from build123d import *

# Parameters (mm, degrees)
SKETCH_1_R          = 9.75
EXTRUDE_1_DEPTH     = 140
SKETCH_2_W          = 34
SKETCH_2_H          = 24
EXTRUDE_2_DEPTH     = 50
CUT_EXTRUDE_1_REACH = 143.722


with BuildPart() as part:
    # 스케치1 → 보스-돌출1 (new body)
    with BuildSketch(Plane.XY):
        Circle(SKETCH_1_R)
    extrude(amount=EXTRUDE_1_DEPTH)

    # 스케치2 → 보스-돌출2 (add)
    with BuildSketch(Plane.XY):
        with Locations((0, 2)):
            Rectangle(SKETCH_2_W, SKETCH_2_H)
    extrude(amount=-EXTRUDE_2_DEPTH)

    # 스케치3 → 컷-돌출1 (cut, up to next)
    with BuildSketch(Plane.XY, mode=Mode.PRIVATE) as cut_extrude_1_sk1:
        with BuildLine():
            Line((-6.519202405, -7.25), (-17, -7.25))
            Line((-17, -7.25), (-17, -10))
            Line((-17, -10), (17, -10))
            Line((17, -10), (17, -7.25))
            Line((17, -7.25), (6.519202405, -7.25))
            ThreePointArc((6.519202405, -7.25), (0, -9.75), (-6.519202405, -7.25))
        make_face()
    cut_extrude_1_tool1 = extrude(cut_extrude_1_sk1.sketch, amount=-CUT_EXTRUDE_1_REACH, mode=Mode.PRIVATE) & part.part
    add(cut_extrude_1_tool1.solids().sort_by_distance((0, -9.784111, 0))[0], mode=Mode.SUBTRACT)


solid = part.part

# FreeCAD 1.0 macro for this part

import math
import FreeCAD as App
import Part
import Sketcher
from FreeCAD import Vector
Q = App.Units.Quantity


def add_polygon(sketch, points):
    """Adds a closed chain of lines whose ends are joined by coincident constraints."""
    first, n = sketch.GeometryCount, len(points)
    for a, b in zip(points, points[1:] + points[:1]):
        sketch.addGeometry(Part.LineSegment(App.Vector(*a, 0), App.Vector(*b, 0)), False)
    for i in range(n):
        sketch.addConstraint(Sketcher.Constraint("Coincident", first + i, 2, first + (i + 1) % n, 1))

doc = App.newDocument("Part")
body = doc.addObject("PartDesign::Body", "Body")

# Sketch on XY plane
sketch1 = doc.addObject("Sketcher::SketchObject", "Sketch")
body.addObject(sketch1)
sketch1.AttachmentSupport = (doc.XY_Plane, [""])
sketch1.MapMode = "FlatFace"
sketch1.addGeometry(Part.Circle(Vector(0, 0, 0), Vector(0, 0, 1), 9.75), False)
sketch1.addConstraint(Sketcher.Constraint("Coincident", 0, 3, -1, 1))
sketch1.addConstraint(Sketcher.Constraint("Diameter", 0, Q("19.5 mm")))
pad1 = doc.addObject("PartDesign::Pad", "Pad")
body.addObject(pad1)
pad1.Profile = sketch1
pad1.Length = 140

# Sketch on XY plane
sketch2 = doc.addObject("Sketcher::SketchObject", "Sketch001")
body.addObject(sketch2)
sketch2.AttachmentSupport = (doc.XY_Plane, [""])
sketch2.MapMode = "FlatFace"
add_polygon(sketch2, [(-17, 14), (-17, -10), (17, -10), (17, 14)])  # lines 0-3
sketch2.addConstraint(Sketcher.Constraint("Vertical", 0))
sketch2.addConstraint(Sketcher.Constraint("Horizontal", 1))
sketch2.addConstraint(Sketcher.Constraint("Vertical", 2))
sketch2.addConstraint(Sketcher.Constraint("Horizontal", 3))
sketch2.addConstraint(Sketcher.Constraint("DistanceX", 1, 1, 1, 2, Q("34 mm")))
sketch2.addConstraint(Sketcher.Constraint("DistanceY", 0, 2, 0, 1, Q("24 mm")))
sketch2.addConstraint(Sketcher.Constraint("DistanceX", 0, 2, -1, 1, Q("17 mm")))
sketch2.addConstraint(Sketcher.Constraint("DistanceY", 0, 2, -1, 1, Q("10 mm")))
pad2 = doc.addObject("PartDesign::Pad", "Pad001")
body.addObject(pad2)
pad2.Profile = sketch2
pad2.Length = 50
pad2.Reversed = True

# Sketch on XY plane
sketch3 = doc.addObject("Sketcher::SketchObject", "Sketch002")
body.addObject(sketch3)
sketch3.AttachmentSupport = (doc.XY_Plane, [""])
sketch3.MapMode = "FlatFace"
sketch3.addGeometry(Part.LineSegment(Vector(-6.519202, -7.25, 0), Vector(-17, -7.25, 0)), False)
sketch3.addGeometry(Part.LineSegment(Vector(-17, -7.25, 0), Vector(-17, -10, 0)), False)
sketch3.addGeometry(Part.LineSegment(Vector(-17, -10, 0), Vector(17, -10, 0)), False)
sketch3.addGeometry(Part.LineSegment(Vector(17, -10, 0), Vector(17, -7.25, 0)), False)
sketch3.addGeometry(Part.LineSegment(Vector(17, -7.25, 0), Vector(6.519202, -7.25, 0)), False)
sketch3.addGeometry(Part.ArcOfCircle(Part.Circle(Vector(0, 0, 0), Vector(0, 0, 1), 9.75), math.radians(-131.961889), math.radians(-48.038111)), False)
sketch3.addConstraint(Sketcher.Constraint("Coincident", 0, 2, 1, 1))
sketch3.addConstraint(Sketcher.Constraint("Coincident", 1, 2, 2, 1))
sketch3.addConstraint(Sketcher.Constraint("Coincident", 2, 2, 3, 1))
sketch3.addConstraint(Sketcher.Constraint("Coincident", 3, 2, 4, 1))
sketch3.addConstraint(Sketcher.Constraint("Coincident", 4, 2, 5, 2))
sketch3.addConstraint(Sketcher.Constraint("Coincident", 5, 1, 0, 1))
sketch3.addConstraint(Sketcher.Constraint("Horizontal", 0))
sketch3.addConstraint(Sketcher.Constraint("Vertical", 1))
sketch3.addConstraint(Sketcher.Constraint("Horizontal", 2))
sketch3.addConstraint(Sketcher.Constraint("Vertical", 3))
sketch3.addConstraint(Sketcher.Constraint("Horizontal", 4))
sketch3.addConstraint(Sketcher.Constraint("Coincident", 5, 3, -1, 1))
sketch3.addConstraint(Sketcher.Constraint("Symmetric", 0, 2, 3, 2, -2))
sketch3.addConstraint(Sketcher.Constraint("DistanceX", 2, 1, 2, 2, Q("34 mm")))
sketch3.addConstraint(Sketcher.Constraint("Radius", 5, Q("9.75 mm")))
sketch3.addConstraint(Sketcher.Constraint("DistanceY", 1, 2, -1, 1, Q("10 mm")))
sketch3.addConstraint(Sketcher.Constraint("DistanceY", 1, 2, 1, 1, Q("2.75 mm")))
pocket1 = doc.addObject("PartDesign::Pocket", "Pocket")
body.addObject(pocket1)
pocket1.Profile = sketch3
pocket1.Type = "UpToFirst"

doc.recompute()
